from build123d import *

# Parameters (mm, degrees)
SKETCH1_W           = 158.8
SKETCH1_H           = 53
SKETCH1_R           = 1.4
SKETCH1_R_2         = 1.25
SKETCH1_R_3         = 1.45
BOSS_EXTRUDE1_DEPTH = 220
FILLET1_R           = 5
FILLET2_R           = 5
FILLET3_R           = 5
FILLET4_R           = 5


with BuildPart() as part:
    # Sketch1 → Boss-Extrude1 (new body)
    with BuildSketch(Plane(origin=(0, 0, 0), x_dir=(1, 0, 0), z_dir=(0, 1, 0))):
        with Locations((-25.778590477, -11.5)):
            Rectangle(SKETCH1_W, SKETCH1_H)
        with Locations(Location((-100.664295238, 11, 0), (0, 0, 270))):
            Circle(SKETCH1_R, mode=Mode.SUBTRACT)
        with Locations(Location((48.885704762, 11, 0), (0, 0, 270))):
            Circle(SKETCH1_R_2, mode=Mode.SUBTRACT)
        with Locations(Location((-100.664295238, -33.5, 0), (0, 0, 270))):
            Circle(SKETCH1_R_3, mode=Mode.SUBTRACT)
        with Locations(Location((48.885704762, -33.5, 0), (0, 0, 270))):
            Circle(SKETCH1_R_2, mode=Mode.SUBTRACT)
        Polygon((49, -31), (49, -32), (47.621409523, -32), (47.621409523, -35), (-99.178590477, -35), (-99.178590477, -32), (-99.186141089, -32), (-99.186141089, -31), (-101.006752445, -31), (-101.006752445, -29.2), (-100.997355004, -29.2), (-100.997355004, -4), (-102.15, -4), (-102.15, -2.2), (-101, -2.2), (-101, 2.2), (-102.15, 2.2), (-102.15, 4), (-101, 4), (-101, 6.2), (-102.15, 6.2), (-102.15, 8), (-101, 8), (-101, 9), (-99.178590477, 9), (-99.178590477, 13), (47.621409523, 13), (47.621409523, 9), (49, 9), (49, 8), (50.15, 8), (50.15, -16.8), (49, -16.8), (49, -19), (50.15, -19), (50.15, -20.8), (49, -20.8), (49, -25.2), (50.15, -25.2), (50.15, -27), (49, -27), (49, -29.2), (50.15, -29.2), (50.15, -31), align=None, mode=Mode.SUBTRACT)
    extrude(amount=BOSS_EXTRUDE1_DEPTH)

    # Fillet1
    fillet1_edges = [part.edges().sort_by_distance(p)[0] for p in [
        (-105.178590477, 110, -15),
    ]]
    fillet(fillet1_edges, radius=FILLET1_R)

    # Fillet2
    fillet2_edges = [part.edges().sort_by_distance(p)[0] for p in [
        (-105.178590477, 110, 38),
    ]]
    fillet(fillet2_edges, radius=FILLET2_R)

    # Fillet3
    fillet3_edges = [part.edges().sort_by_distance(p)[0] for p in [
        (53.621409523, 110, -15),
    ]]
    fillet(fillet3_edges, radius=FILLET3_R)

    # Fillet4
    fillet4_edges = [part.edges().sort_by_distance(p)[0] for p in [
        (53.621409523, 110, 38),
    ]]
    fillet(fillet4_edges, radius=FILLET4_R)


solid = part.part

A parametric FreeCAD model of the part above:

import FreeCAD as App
import Part
import Sketcher

V = App.Vector
Q = App.Units.Quantity


def edges_at(feature, points):
    """Names of the edges that pass closest to the given points."""
    edges = feature.Shape.Edges
    near = lambda p: min(range(len(edges)), key=lambda i: edges[i].distToShape(Part.Vertex(*p))[0])
    return sorted({f"Edge{near(p) + 1}" for p in points})

doc = App.newDocument("Part")
body = doc.addObject("PartDesign::Body", "Body")

# Sketch on XZ plane
sketch1 = body.newObject("Sketcher::SketchObject", "Sketch")
sketch1.AttachmentSupport = (doc.getObject("XZ_Plane"), [""])
sketch1.MapMode = "FlatFace"
sketch1.addGeometry([
    Part.LineSegment(V(-105.179, -15, 0), V(-105.179, 38, 0)),  # 0
    Part.LineSegment(V(-105.179, 38, 0), V(53.621, 38, 0)),  # 1
    Part.LineSegment(V(53.621, 38, 0), V(53.621, -15, 0)),  # 2
    Part.LineSegment(V(53.621, -15, 0), V(-105.179, -15, 0)),  # 3
    Part.Circle(V(-100.664, 33.5, 0), V(0, 0, 1), 1.45),  # 4
    Part.Circle(V(48.886, 33.5, 0), V(0, 0, 1), 1.25),  # 5
    Part.Circle(V(-100.664, -11, 0), V(0, 0, 1), 1.4),  # 6
    Part.LineSegment(V(50.15, 31, 0), V(49, 31, 0)),  # 7
    Part.LineSegment(V(49, 31, 0), V(49, 32, 0)),  # 8
    Part.LineSegment(V(49, 32, 0), V(47.621, 32, 0)),  # 9
    Part.LineSegment(V(47.621, 32, 0), V(47.621, 35, 0)),  # 10
    Part.LineSegment(V(47.621, 35, 0), V(-99.179, 35, 0)),  # 11
    Part.LineSegment(V(-99.179, 35, 0), V(-99.179, 32, 0)),  # 12
    Part.LineSegment(V(-99.179, 32, 0), V(-99.186, 32, 0)),  # 13
    Part.LineSegment(V(-99.186, 32, 0), V(-99.186, 31, 0)),  # 14
    Part.LineSegment(V(-99.186, 31, 0), V(-101.007, 31, 0)),  # 15
    Part.LineSegment(V(-101.007, 31, 0), V(-101.007, 29.2, 0)),  # 16
    Part.LineSegment(V(-101.007, 29.2, 0), V(-100.997, 29.2, 0)),  # 17
    Part.LineSegment(V(-100.997, 29.2, 0), V(-100.997, 4, 0)),  # 18
    Part.LineSegment(V(-100.997, 4, 0), V(-102.15, 4, 0)),  # 19
    Part.LineSegment(V(-102.15, 4, 0), V(-102.15, 2.2, 0)),  # 20
    Part.LineSegment(V(-102.15, 2.2, 0), V(-101, 2.2, 0)),  # 21
    Part.LineSegment(V(-101, 2.2, 0), V(-101, -2.2, 0)),  # 22
    Part.LineSegment(V(-101, -2.2, 0), V(-102.15, -2.2, 0)),  # 23
    Part.LineSegment(V(-102.15, -2.2, 0), V(-102.15, -4, 0)),  # 24
    Part.LineSegment(V(-102.15, -4, 0), V(-101, -4, 0)),  # 25
    Part.LineSegment(V(-101, -4, 0), V(-101, -6.2, 0)),  # 26
    Part.LineSegment(V(-101, -6.2, 0), V(-102.15, -6.2, 0)),  # 27
    Part.LineSegment(V(-102.15, -6.2, 0), V(-102.15, -8, 0)),  # 28
    Part.LineSegment(V(-102.15, -8, 0), V(-101, -8, 0)),  # 29
    Part.LineSegment(V(-101, -8, 0), V(-101, -9, 0)),  # 30
    Part.LineSegment(V(-101, -9, 0), V(-99.179, -9, 0)),  # 31
    Part.LineSegment(V(-99.179, -9, 0), V(-99.179, -13, 0)),  # 32
    Part.LineSegment(V(-99.179, -13, 0), V(47.621, -13, 0)),  # 33
    Part.LineSegment(V(47.621, -13, 0), V(47.621, -9, 0)),  # 34
    Part.LineSegment(V(47.621, -9, 0), V(49, -9, 0)),  # 35
    Part.LineSegment(V(49, -9, 0), V(49, -8, 0)),  # 36
    Part.LineSegment(V(49, -8, 0), V(50.15, -8, 0)),  # 37
    Part.LineSegment(V(50.15, -8, 0), V(50.15, 16.8, 0)),  # 38
    Part.LineSegment(V(50.15, 16.8, 0), V(49, 16.8, 0)),  # 39
    Part.LineSegment(V(49, 16.8, 0), V(49, 19, 0)),  # 40
    Part.LineSegment(V(49, 19, 0), V(50.15, 19, 0)),  # 41
    Part.LineSegment(V(50.15, 19, 0), V(50.15, 20.8, 0)),  # 42
    Part.LineSegment(V(50.15, 20.8, 0), V(49, 20.8, 0)),  # 43
    Part.LineSegment(V(49, 20.8, 0), V(49, 25.2, 0)),  # 44
    Part.LineSegment(V(49, 25.2, 0), V(50.15, 25.2, 0)),  # 45
    Part.LineSegment(V(50.15, 25.2, 0), V(50.15, 27, 0)),  # 46
    Part.LineSegment(V(50.15, 27, 0), V(49, 27, 0)),  # 47
    Part.LineSegment(V(49, 27, 0), V(49, 29.2, 0)),  # 48
    Part.LineSegment(V(49, 29.2, 0), V(50.15, 29.2, 0)),  # 49
    Part.LineSegment(V(50.15, 29.2, 0), V(50.15, 31, 0)),  # 50
    Part.Circle(V(48.886, -11, 0), V(0, 0, 1), 1.25),  # 51
], False)
sketch1.addConstraint([
    Sketcher.Constraint("Coincident", 0, 2, 1, 1),
    Sketcher.Constraint("Coincident", 1, 2, 2, 1),
    Sketcher.Constraint("Coincident", 2, 2, 3, 1),
    Sketcher.Constraint("Coincident", 3, 2, 0, 1),
    Sketcher.Constraint("Coincident", 7, 2, 8, 1),
    Sketcher.Constraint("Coincident", 8, 2, 9, 1),
    Sketcher.Constraint("Coincident", 9, 2, 10, 1),
    Sketcher.Constraint("Coincident", 10, 2, 11, 1),
    Sketcher.Constraint("Coincident", 11, 2, 12, 1),
    Sketcher.Constraint("Coincident", 12, 2, 13, 1),
    Sketcher.Constraint("Coincident", 13, 2, 14, 1),
    Sketcher.Constraint("Coincident", 14, 2, 15, 1),
    Sketcher.Constraint("Coincident", 15, 2, 16, 1),
    Sketcher.Constraint("Coincident", 16, 2, 17, 1),
    Sketcher.Constraint("Coincident", 17, 2, 18, 1),
    Sketcher.Constraint("Coincident", 18, 2, 19, 1),
    Sketcher.Constraint("Coincident", 19, 2, 20, 1),
    Sketcher.Constraint("Coincident", 20, 2, 21, 1),
    Sketcher.Constraint("Coincident", 21, 2, 22, 1),
    Sketcher.Constraint("Coincident", 22, 2, 23, 1),
    Sketcher.Constraint("Coincident", 23, 2, 24, 1),
    Sketcher.Constraint("Coincident", 24, 2, 25, 1),
    Sketcher.Constraint("Coincident", 25, 2, 26, 1),
    Sketcher.Constraint("Coincident", 26, 2, 27, 1),
    Sketcher.Constraint("Coincident", 27, 2, 28, 1),
    Sketcher.Constraint("Coincident", 28, 2, 29, 1),
    Sketcher.Constraint("Coincident", 29, 2, 30, 1),
    Sketcher.Constraint("Coincident", 30, 2, 31, 1),
    Sketcher.Constraint("Coincident", 31, 2, 32, 1),
    Sketcher.Constraint("Coincident", 32, 2, 33, 1),
    Sketcher.Constraint("Coincident", 33, 2, 34, 1),
    Sketcher.Constraint("Coincident", 34, 2, 35, 1),
    Sketcher.Constraint("Coincident", 35, 2, 36, 1),
    Sketcher.Constraint("Coincident", 36, 2, 37, 1),
    Sketcher.Constraint("Coincident", 37, 2, 38, 1),
    Sketcher.Constraint("Coincident", 38, 2, 39, 1),
    Sketcher.Constraint("Coincident", 39, 2, 40, 1),
    Sketcher.Constraint("Coincident", 40, 2, 41, 1),
    Sketcher.Constraint("Coincident", 41, 2, 42, 1),
    Sketcher.Constraint("Coincident", 42, 2, 43, 1),
    Sketcher.Constraint("Coincident", 43, 2, 44, 1),
    Sketcher.Constraint("Coincident", 44, 2, 45, 1),
    Sketcher.Constraint("Coincident", 45, 2, 46, 1),
    Sketcher.Constraint("Coincident", 46, 2, 47, 1),
    Sketcher.Constraint("Coincident", 47, 2, 48, 1),
    Sketcher.Constraint("Coincident", 48, 2, 49, 1),
    Sketcher.Constraint("Coincident", 49, 2, 50, 1),
    Sketcher.Constraint("Coincident", 50, 2, 7, 1),
    Sketcher.Constraint("Vertical", 0),
    Sketcher.Constraint("Horizontal", 1),
    Sketcher.Constraint("Vertical", 2),
    Sketcher.Constraint("Horizontal", 3),
    Sketcher.Constraint("Horizontal", 7),
    Sketcher.Constraint("Vertical", 8),
    Sketcher.Constraint("Horizontal", 9),
    Sketcher.Constraint("Vertical", 10),
    Sketcher.Constraint("Horizontal", 11),
    Sketcher.Constraint("Vertical", 12),
    Sketcher.Constraint("Horizontal", 13),
    Sketcher.Constraint("Vertical", 14),
    Sketcher.Constraint("Horizontal", 15),
    Sketcher.Constraint("Vertical", 16),
    Sketcher.Constraint("Horizontal", 17),
    Sketcher.Constraint("Vertical", 18),
    Sketcher.Constraint("Horizontal", 19),
    Sketcher.Constraint("Vertical", 20),
    Sketcher.Constraint("Horizontal", 21),
    Sketcher.Constraint("Vertical", 22),
    Sketcher.Constraint("Horizontal", 23),
    Sketcher.Constraint("Vertical", 24),
    Sketcher.Constraint("Horizontal", 25),
    Sketcher.Constraint("Vertical", 26),
    Sketcher.Constraint("Horizontal", 27),
    Sketcher.Constraint("Vertical", 28),
    Sketcher.Constraint("Horizontal", 29),
    Sketcher.Constraint("Vertical", 30),
    Sketcher.Constraint("Horizontal", 31),
    Sketcher.Constraint("Vertical", 32),
    Sketcher.Constraint("Horizontal", 33),
    Sketcher.Constraint("Vertical", 34),
    Sketcher.Constraint("Horizontal", 35),
    Sketcher.Constraint("Vertical", 36),
    Sketcher.Constraint("Horizontal", 37),
    Sketcher.Constraint("Vertical", 38),
    Sketcher.Constraint("Horizontal", 39),
    Sketcher.Constraint("Vertical", 40),
    Sketcher.Constraint("Horizontal", 41),
    Sketcher.Constraint("Vertical", 42),
    Sketcher.Constraint("Horizontal", 43),
    Sketcher.Constraint("Vertical", 44),
    Sketcher.Constraint("Horizontal", 45),
    Sketcher.Constraint("Vertical", 46),
    Sketcher.Constraint("Horizontal", 47),
    Sketcher.Constraint("Vertical", 48),
    Sketcher.Constraint("Horizontal", 49),
    Sketcher.Constraint("Vertical", 50),
    Sketcher.Constraint("Equal", 5, 51),
    Sketcher.Constraint("Symmetric", 20, 2, 23, 2, -1),
    Sketcher.Constraint("Horizontal", 4, 3, 5, 3),
    Sketcher.Constraint("Horizontal", 6, 3, 51, 3),
    Sketcher.Constraint("Horizontal", 9, 2, 12, 2),
    Sketcher.Constraint("Horizontal", 7, 2, 14, 2),
    Sketcher.Constraint("Horizontal", 31, 2, 34, 2),
    Sketcher.Constraint("Horizontal", 29, 2, 36, 2),
    Sketcher.Constraint("Horizontal", 17, 2, 48, 2),
    Sketcher.Constraint("Vertical", 4, 3, 6, 3),
    Sketcher.Constraint("Vertical", 5, 3, 51, 3),
    Sketcher.Constraint("Vertical", 22, 2, 25, 2),
    Sketcher.Constraint("Vertical", 24, 2, 27, 2),
    Sketcher.Constraint("Vertical", 26, 2, 29, 2),
    Sketcher.Constraint("Vertical", 12, 2, 31, 2),
    Sketcher.Constraint("Vertical", 10, 2, 33, 2),
    Sketcher.Constraint("Vertical", 8, 2, 35, 2),
    Sketcher.Constraint("Vertical", 36, 2, 39, 2),
    Sketcher.Constraint("Vertical", 38, 2, 41, 2),
    Sketcher.Constraint("Vertical", 40, 2, 43, 2),
    Sketcher.Constraint("Vertical", 42, 2, 45, 2),
    Sketcher.Constraint("Vertical", 44, 2, 47, 2),
    Sketcher.Constraint("Vertical", 46, 2, 49, 2),
    Sketcher.Constraint("Equal", 7, 21),
    Sketcher.Constraint("Equal", 16, 20),
    Sketcher.Constraint("Equal", 20, 24),
    Sketcher.Constraint("Equal", 24, 28),
    Sketcher.Constraint("Equal", 14, 30),
    Sketcher.Constraint("Equal", 26, 40),
    Sketcher.Constraint("Equal", 28, 42),
    Sketcher.Constraint("Equal", 22, 44),
    Sketcher.Constraint("Equal", 42, 46),
    Sketcher.Constraint("Equal", 40, 48),
    Sketcher.Constraint("Diameter", 4, Q("2.9 mm")),
    Sketcher.Constraint("Diameter", 5, Q("2.5 mm")),
    Sketcher.Constraint("Diameter", 6, Q("2.8 mm")),
    Sketcher.Constraint("DistanceY", 0, 1, 0, 2, Q("53 mm")),
    Sketcher.Constraint("DistanceY", 8, 1, 8, 2, Q("1 mm")),
    Sketcher.Constraint("DistanceY", 10, 1, 10, 2, Q("3 mm")),
    Sketcher.Constraint("DistanceY", 32, 2, 32, 1, Q("4 mm")),
    Sketcher.Constraint("DistanceX", 1, 1, 1, 2, Q("158.8 mm")),
    Sketcher.Constraint("DistanceX", 11, 2, 11, 1, Q("146.8 mm")),
    Sketcher.Constraint("DistanceY", 16, 2, 16, 1, Q("1.8 mm")),
    Sketcher.Constraint("DistanceY", 18, 2, 18, 1, Q("25.2 mm")),
    Sketcher.Constraint("DistanceY", 22, 2, 22, 1, Q("4.4 mm")),
    Sketcher.Constraint("DistanceY", 26, 2, 26, 1, Q("2.2 mm")),
    Sketcher.Constraint("DistanceY", 6, 3, -1, 1, Q("11 mm")),
    Sketcher.Constraint("DistanceY", -1, 1, 0, 2, Q("38 mm")),
    Sketcher.Constraint("DistanceX", -1, 1, 7, 2, Q("49 mm")),
    Sketcher.Constraint("DistanceX", 21, 2, -1, 1, Q("101 mm")),
    Sketcher.Constraint("DistanceX", 9, 2, 1, 2, Q("6 mm")),
    Sketcher.Constraint("DistanceX", 7, 2, 7, 1, Q("1.15 mm")),
    Sketcher.Constraint("DistanceY", -1, 1, 4, 3, Q("33.5 mm")),
    Sketcher.Constraint("DistanceX", 4, 3, 5, 3, Q("149.55 mm")),
    Sketcher.Constraint("DistanceX", 9, 2, 9, 1, Q("1.37859 mm")),
    Sketcher.Constraint("DistanceX", 13, 2, 13, 1, Q("0.007551 mm")),
    Sketcher.Constraint("DistanceX", 15, 2, 15, 1, Q("1.820611 mm")),
    Sketcher.Constraint("DistanceX", 17, 1, 17, 2, Q("0.009397 mm")),
    Sketcher.Constraint("DistanceX", 18, 2, 6, 3, Q("0.33306 mm")),
])
pad1 = body.newObject("PartDesign::Pad", "Pad")
pad1.Profile = sketch1
pad1.Length = 220
pad1.Reversed = True
doc.recompute()

fillet = body.newObject("PartDesign::Fillet", "Fillet")
fillet.Base = (pad1, edges_at(pad1, [(-105.179, 110, -15)]))
fillet.Radius = 5
doc.recompute()

fillet2 = body.newObject("PartDesign::Fillet", "Fillet001")
fillet2.Base = (fillet, edges_at(fillet, [(-105.179, 110, 38)]))
fillet2.Radius = 5
doc.recompute()

fillet3 = body.newObject("PartDesign::Fillet", "Fillet002")
fillet3.Base = (fillet2, edges_at(fillet2, [(53.621, 110, -15)]))
fillet3.Radius = 5
doc.recompute()

fillet4 = body.newObject("PartDesign::Fillet", "Fillet003")
fillet4.Base = (fillet3, edges_at(fillet3, [(53.621, 110, 38)]))
fillet4.Radius = 5

doc.recompute()
